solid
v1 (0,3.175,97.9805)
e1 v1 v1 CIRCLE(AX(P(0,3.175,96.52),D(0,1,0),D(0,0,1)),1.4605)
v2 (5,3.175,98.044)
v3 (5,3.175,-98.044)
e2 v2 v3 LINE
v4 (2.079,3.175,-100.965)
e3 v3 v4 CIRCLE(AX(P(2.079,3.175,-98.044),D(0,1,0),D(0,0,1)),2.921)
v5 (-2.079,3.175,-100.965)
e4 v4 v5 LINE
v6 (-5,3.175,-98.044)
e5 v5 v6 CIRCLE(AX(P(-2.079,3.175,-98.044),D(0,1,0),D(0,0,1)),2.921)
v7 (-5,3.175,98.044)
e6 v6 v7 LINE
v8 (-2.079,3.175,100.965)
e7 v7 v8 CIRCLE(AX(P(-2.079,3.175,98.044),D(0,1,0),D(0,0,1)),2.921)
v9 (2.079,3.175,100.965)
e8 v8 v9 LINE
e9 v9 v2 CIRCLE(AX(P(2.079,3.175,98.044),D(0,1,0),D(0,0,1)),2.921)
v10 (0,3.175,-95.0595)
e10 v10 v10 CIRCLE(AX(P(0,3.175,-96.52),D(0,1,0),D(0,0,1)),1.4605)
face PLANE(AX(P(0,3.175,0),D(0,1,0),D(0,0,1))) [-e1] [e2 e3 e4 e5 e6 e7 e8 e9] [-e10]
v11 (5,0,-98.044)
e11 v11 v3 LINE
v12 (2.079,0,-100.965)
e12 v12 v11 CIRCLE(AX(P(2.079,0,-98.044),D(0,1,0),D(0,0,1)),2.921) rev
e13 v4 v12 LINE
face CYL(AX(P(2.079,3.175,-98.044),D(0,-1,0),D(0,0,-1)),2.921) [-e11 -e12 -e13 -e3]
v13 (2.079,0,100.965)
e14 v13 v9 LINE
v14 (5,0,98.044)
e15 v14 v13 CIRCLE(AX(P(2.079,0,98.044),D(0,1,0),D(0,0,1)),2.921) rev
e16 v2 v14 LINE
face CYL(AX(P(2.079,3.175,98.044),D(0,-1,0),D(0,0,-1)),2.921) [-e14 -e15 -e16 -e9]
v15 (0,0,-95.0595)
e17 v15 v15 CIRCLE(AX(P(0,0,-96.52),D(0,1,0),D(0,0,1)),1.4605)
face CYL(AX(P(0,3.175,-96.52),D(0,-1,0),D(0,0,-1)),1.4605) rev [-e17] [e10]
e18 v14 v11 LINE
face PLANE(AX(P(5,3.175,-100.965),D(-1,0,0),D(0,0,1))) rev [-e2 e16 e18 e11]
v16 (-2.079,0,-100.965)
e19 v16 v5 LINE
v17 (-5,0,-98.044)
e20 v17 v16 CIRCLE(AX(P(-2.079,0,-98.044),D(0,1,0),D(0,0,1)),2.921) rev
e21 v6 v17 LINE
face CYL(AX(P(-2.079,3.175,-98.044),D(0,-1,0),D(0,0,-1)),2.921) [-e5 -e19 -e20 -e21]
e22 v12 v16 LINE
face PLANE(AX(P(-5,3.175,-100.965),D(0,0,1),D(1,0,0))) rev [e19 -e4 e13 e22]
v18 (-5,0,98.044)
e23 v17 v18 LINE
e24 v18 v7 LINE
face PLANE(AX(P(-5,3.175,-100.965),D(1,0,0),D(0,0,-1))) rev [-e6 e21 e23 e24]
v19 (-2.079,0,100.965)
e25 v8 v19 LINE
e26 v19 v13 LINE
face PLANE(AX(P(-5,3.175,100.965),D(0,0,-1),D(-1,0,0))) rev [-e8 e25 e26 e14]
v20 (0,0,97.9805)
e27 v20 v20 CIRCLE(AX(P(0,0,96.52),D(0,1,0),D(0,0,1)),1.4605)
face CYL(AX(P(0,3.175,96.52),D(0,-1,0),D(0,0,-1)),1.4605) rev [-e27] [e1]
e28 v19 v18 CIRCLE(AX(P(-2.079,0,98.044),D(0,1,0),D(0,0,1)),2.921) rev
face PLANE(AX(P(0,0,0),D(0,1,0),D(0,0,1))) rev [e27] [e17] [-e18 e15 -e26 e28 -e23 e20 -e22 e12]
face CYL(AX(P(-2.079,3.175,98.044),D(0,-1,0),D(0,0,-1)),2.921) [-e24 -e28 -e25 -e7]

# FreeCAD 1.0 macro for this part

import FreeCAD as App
import Part
import Sketcher
from FreeCAD import Vector
Q = App.Units.Quantity


def edges_at(feature, points):
    """Names of the edges that pass closest to the given points."""
    edges = feature.Shape.Edges
    near = lambda p: min(range(len(edges)), key=lambda i: edges[i].distToShape(Part.Vertex(*p))[0])
    return sorted({f"Edge{near(p) + 1}" for p in points})

doc = App.newDocument("Part")
params = doc.addObject("Spreadsheet::Sheet", "Params")
for row, (alias, value) in enumerate([
    ("sketch1_diameter", "0.115 in"),
    ("sketch1_height", "7.95 in"),
    ("pad1_length", "0.125 in"),
    ("fillet_radius", "0.115 in"),
], start=1):
    params.set(f"A{row}", alias)
    params.set(f"B{row}", "=" + value)
    params.setAlias(f"B{row}", alias)

body = doc.addObject("PartDesign::Body", "Body")

# Sketch on XZ plane
sketch1 = doc.addObject("Sketcher::SketchObject", "Sketch")
body.addObject(sketch1)
sketch1.AttachmentSupport = (doc.XZ_Plane, [""])
sketch1.MapMode = "FlatFace"
sketch1.addGeometry([
    Part.LineSegment(Vector(-5, -101, 0), Vector(-5, 101, 0)),  # 0
    Part.LineSegment(Vector(-5, 101, 0), Vector(5, 101, 0)),  # 1
    Part.LineSegment(Vector(5, 101, 0), Vector(5, -101, 0)),  # 2
    Part.LineSegment(Vector(5, -101, 0), Vector(-5, -101, 0)),  # 3
    Part.Circle(Vector(0, 96.5, 0), Vector(0, 0, 1), 1.5),  # 4
    Part.Circle(Vector(0, -96.5, 0), Vector(0, 0, 1), 1.5),  # 5
], False)
sketch1.addConstraint([
    Sketcher.Constraint("Coincident", 0, 2, 1, 1),
    Sketcher.Constraint("Coincident", 1, 2, 2, 1),
    Sketcher.Constraint("Coincident", 2, 2, 3, 1),
    Sketcher.Constraint("Coincident", 3, 2, 0, 1),
    Sketcher.Constraint("Vertical", 0),
    Sketcher.Constraint("Horizontal", 1),
    Sketcher.Constraint("Vertical", 2),
    Sketcher.Constraint("Horizontal", 3),
    Sketcher.Constraint("Equal", 4, 5),
    Sketcher.Constraint("Symmetric", 4, 3, 5, 3, -1, 1),
    Sketcher.Constraint("Symmetric", 0, 2, 2, 2, -1, 1),
    Sketcher.Constraint("PointOnObject", 4, 3, -2),
    Sketcher.Constraint("Diameter", 4, Q("0.115 in")),
    Sketcher.Constraint("DistanceY", 0, 1, 0, 2, Q("7.95 in")),
    Sketcher.Constraint("DistanceY", -1, 1, 4, 3, Q("3.8 in")),
    Sketcher.Constraint("DistanceX", 1, 1, 1, 2, 10.0),
])
sketch1.setExpression("Constraints[12]", "Params.sketch1_diameter")
sketch1.setExpression("Constraints[13]", "Params.sketch1_height")
pad1 = doc.addObject("PartDesign::Pad", "Pad")
body.addObject(pad1)
pad1.Profile = sketch1
pad1.setExpression("Length", "Params.pad1_length")
pad1.Reversed = True
doc.recompute()

fillet = doc.addObject("PartDesign::Fillet", "Fillet")
body.addObject(fillet)
fillet.Base = (pad1, edges_at(pad1, [
    (5, 1.587, 100.965),
    (-5, 1.587, 100.965),
    (-5, 1.587, -100.965),
    (5, 1.587, -100.965),
]))
fillet.setExpression("Radius", "Params.fillet_radius")

doc.recompute()
